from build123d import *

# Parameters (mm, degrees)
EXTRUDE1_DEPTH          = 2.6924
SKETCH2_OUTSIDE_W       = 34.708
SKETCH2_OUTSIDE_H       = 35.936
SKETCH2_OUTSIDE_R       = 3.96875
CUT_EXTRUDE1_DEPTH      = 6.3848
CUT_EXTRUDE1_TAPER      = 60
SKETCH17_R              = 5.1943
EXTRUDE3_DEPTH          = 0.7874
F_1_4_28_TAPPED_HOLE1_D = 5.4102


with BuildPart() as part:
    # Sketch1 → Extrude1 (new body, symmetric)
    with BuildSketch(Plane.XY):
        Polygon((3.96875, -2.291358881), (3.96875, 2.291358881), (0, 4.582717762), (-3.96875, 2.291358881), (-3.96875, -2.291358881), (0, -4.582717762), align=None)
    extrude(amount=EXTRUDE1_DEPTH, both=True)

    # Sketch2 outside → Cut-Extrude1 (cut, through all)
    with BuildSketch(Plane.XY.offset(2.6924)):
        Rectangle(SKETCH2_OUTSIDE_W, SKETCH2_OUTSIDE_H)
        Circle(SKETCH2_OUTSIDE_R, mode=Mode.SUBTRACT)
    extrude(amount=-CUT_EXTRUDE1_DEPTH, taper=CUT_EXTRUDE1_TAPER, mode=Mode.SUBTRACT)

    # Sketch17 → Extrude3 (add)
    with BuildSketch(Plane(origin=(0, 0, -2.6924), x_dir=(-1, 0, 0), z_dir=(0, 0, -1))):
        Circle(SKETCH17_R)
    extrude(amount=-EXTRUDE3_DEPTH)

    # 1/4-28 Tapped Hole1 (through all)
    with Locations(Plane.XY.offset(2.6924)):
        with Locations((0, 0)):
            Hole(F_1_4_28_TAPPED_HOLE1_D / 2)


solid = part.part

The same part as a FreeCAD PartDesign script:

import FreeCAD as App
import Part
import Sketcher

V = App.Vector
Q = App.Units.Quantity

doc = App.newDocument("Part")
body = doc.addObject("PartDesign::Body", "Body")

# Sketch on XY plane
sketch1 = body.newObject("Sketcher::SketchObject", "Sketch")
sketch1.AttachmentSupport = (doc.getObject("XY_Plane"), [""])
sketch1.MapMode = "FlatFace"
sketch1.addGeometry([
    Part.LineSegment(V(4, -2.3, 0), V(4, 2.3, 0)),  # 0
    Part.LineSegment(V(4, 2.3, 0), V(0, 4.6, 0)),  # 1
    Part.LineSegment(V(0, 4.6, 0), V(-4, 2.3, 0)),  # 2
    Part.LineSegment(V(-4, 2.3, 0), V(-4, -2.3, 0)),  # 3
    Part.LineSegment(V(-4, -2.3, 0), V(0, -4.6, 0)),  # 4
    Part.LineSegment(V(0, -4.6, 0), V(4, -2.3, 0)),  # 5
], False)
sketch1.addConstraint([
    Sketcher.Constraint("Coincident", 0, 2, 1, 1),
    Sketcher.Constraint("Coincident", 1, 2, 2, 1),
    Sketcher.Constraint("Coincident", 2, 2, 3, 1),
    Sketcher.Constraint("Coincident", 3, 2, 4, 1),
    Sketcher.Constraint("Coincident", 4, 2, 5, 1),
    Sketcher.Constraint("Coincident", 5, 2, 0, 1),
    Sketcher.Constraint("Vertical", 0),
    Sketcher.Constraint("Vertical", 3),
    Sketcher.Constraint("Symmetric", 0, 2, 3, 2, -1, 1),
    Sketcher.Constraint("Symmetric", 1, 2, 4, 2, -1, 1),
    Sketcher.Constraint("PointOnObject", 1, 2, -2),
    Sketcher.Constraint("Parallel", 2, 5),
    Sketcher.Constraint("Horizontal", 0, 2, 2, 2),
    Sketcher.Constraint("Angle", 1, Q("150 deg")),
    Sketcher.Constraint("DistanceX", -1, 1, 0, 2, Q("0.15625 in")),
    Sketcher.Constraint("DistanceY", 0, 1, 0, 2, 4.582718),
])
pad1 = body.newObject("PartDesign::Pad", "Pad")
pad1.Profile = sketch1
pad1.Length = Q("0.212 in")
pad1.Midplane = True

# Sketch on XY plane
sketch2 = body.newObject("Sketcher::SketchObject", "Sketch001")
sketch2.AttachmentSupport = (doc.getObject("XY_Plane"), [""])
sketch2.MapMode = "FlatFace"
sketch2.AttachmentOffset = App.Placement(V(0, 0, 0.106 * 25.4), App.Rotation())
sketch2.addGeometry([
    Part.LineSegment(V(-17.4, 18, 0), V(-17.4, -18, 0)),  # 0
    Part.LineSegment(V(-17.4, -18, 0), V(17.4, -18, 0)),  # 1
    Part.LineSegment(V(17.4, -18, 0), V(17.4, 18, 0)),  # 2
    Part.LineSegment(V(17.4, 18, 0), V(-17.4, 18, 0)),  # 3
    Part.Circle(V(0, 0, 0), V(0, 0, 1), 4),  # 4
], False)
sketch2.addConstraint([
    Sketcher.Constraint("Coincident", 0, 2, 1, 1),
    Sketcher.Constraint("Coincident", 1, 2, 2, 1),
    Sketcher.Constraint("Coincident", 2, 2, 3, 1),
    Sketcher.Constraint("Coincident", 3, 2, 0, 1),
    Sketcher.Constraint("Vertical", 0),
    Sketcher.Constraint("Horizontal", 1),
    Sketcher.Constraint("Vertical", 2),
    Sketcher.Constraint("Horizontal", 3),
    Sketcher.Constraint("Coincident", 4, 3, -1, 1),
    Sketcher.Constraint("Symmetric", 0, 2, 2, 2, -1, 1),
    Sketcher.Constraint("Diameter", 4, Q("0.3125 in")),
    Sketcher.Constraint("DistanceX", 1, 1, 1, 2, 34.708),
    Sketcher.Constraint("DistanceY", 0, 2, 0, 1, 35.936),
])
pocket1 = body.newObject("PartDesign::Pocket", "Pocket")
pocket1.Profile = sketch2
pocket1.Length = 6.3848
pocket1.TaperAngle = 60

# Sketch on XY plane
sketch3 = body.newObject("Sketcher::SketchObject", "Sketch002")
sketch3.AttachmentSupport = (doc.getObject("XY_Plane"), [""])
sketch3.MapMode = "FlatFace"
sketch3.AttachmentOffset = App.Placement(V(0, 0, -0.106 * 25.4), App.Rotation())
sketch3.addGeometry(Part.Circle(V(0, 0, 0), V(0, 0, 1), 5), False)
sketch3.addConstraint([
    Sketcher.Constraint("Coincident", 0, 3, -1, 1),
    Sketcher.Constraint("Diameter", 0, Q("0.409 in")),
])
pad2 = body.newObject("PartDesign::Pad", "Pad001")
pad2.Profile = sketch3
pad2.Length = Q("0.031 in")

# Sketch on XY plane
sketch4 = body.newObject("Sketcher::SketchObject", "Sketch003")
sketch4.AttachmentSupport = (doc.getObject("XY_Plane"), [""])
sketch4.MapMode = "FlatFace"
sketch4.AttachmentOffset = App.Placement(V(0, 0, 0.106 * 25.4), App.Rotation())
sketch4.addGeometry(Part.Circle(V(0, 0, 0), V(0, 0, 1), 2.7), False)
sketch4.addConstraint([
    Sketcher.Constraint("Coincident", 0, 3, -1, 1),
    Sketcher.Constraint("Diameter", 0, Q("0.213 in")),
])
doc.recompute()
hole = body.newObject("PartDesign::Hole", "Hole")
hole.Profile = sketch4
hole.ThreadType = "None"
hole.Diameter = Q("0.213 in")
hole.DepthType = "ThroughAll"

doc.recompute()
